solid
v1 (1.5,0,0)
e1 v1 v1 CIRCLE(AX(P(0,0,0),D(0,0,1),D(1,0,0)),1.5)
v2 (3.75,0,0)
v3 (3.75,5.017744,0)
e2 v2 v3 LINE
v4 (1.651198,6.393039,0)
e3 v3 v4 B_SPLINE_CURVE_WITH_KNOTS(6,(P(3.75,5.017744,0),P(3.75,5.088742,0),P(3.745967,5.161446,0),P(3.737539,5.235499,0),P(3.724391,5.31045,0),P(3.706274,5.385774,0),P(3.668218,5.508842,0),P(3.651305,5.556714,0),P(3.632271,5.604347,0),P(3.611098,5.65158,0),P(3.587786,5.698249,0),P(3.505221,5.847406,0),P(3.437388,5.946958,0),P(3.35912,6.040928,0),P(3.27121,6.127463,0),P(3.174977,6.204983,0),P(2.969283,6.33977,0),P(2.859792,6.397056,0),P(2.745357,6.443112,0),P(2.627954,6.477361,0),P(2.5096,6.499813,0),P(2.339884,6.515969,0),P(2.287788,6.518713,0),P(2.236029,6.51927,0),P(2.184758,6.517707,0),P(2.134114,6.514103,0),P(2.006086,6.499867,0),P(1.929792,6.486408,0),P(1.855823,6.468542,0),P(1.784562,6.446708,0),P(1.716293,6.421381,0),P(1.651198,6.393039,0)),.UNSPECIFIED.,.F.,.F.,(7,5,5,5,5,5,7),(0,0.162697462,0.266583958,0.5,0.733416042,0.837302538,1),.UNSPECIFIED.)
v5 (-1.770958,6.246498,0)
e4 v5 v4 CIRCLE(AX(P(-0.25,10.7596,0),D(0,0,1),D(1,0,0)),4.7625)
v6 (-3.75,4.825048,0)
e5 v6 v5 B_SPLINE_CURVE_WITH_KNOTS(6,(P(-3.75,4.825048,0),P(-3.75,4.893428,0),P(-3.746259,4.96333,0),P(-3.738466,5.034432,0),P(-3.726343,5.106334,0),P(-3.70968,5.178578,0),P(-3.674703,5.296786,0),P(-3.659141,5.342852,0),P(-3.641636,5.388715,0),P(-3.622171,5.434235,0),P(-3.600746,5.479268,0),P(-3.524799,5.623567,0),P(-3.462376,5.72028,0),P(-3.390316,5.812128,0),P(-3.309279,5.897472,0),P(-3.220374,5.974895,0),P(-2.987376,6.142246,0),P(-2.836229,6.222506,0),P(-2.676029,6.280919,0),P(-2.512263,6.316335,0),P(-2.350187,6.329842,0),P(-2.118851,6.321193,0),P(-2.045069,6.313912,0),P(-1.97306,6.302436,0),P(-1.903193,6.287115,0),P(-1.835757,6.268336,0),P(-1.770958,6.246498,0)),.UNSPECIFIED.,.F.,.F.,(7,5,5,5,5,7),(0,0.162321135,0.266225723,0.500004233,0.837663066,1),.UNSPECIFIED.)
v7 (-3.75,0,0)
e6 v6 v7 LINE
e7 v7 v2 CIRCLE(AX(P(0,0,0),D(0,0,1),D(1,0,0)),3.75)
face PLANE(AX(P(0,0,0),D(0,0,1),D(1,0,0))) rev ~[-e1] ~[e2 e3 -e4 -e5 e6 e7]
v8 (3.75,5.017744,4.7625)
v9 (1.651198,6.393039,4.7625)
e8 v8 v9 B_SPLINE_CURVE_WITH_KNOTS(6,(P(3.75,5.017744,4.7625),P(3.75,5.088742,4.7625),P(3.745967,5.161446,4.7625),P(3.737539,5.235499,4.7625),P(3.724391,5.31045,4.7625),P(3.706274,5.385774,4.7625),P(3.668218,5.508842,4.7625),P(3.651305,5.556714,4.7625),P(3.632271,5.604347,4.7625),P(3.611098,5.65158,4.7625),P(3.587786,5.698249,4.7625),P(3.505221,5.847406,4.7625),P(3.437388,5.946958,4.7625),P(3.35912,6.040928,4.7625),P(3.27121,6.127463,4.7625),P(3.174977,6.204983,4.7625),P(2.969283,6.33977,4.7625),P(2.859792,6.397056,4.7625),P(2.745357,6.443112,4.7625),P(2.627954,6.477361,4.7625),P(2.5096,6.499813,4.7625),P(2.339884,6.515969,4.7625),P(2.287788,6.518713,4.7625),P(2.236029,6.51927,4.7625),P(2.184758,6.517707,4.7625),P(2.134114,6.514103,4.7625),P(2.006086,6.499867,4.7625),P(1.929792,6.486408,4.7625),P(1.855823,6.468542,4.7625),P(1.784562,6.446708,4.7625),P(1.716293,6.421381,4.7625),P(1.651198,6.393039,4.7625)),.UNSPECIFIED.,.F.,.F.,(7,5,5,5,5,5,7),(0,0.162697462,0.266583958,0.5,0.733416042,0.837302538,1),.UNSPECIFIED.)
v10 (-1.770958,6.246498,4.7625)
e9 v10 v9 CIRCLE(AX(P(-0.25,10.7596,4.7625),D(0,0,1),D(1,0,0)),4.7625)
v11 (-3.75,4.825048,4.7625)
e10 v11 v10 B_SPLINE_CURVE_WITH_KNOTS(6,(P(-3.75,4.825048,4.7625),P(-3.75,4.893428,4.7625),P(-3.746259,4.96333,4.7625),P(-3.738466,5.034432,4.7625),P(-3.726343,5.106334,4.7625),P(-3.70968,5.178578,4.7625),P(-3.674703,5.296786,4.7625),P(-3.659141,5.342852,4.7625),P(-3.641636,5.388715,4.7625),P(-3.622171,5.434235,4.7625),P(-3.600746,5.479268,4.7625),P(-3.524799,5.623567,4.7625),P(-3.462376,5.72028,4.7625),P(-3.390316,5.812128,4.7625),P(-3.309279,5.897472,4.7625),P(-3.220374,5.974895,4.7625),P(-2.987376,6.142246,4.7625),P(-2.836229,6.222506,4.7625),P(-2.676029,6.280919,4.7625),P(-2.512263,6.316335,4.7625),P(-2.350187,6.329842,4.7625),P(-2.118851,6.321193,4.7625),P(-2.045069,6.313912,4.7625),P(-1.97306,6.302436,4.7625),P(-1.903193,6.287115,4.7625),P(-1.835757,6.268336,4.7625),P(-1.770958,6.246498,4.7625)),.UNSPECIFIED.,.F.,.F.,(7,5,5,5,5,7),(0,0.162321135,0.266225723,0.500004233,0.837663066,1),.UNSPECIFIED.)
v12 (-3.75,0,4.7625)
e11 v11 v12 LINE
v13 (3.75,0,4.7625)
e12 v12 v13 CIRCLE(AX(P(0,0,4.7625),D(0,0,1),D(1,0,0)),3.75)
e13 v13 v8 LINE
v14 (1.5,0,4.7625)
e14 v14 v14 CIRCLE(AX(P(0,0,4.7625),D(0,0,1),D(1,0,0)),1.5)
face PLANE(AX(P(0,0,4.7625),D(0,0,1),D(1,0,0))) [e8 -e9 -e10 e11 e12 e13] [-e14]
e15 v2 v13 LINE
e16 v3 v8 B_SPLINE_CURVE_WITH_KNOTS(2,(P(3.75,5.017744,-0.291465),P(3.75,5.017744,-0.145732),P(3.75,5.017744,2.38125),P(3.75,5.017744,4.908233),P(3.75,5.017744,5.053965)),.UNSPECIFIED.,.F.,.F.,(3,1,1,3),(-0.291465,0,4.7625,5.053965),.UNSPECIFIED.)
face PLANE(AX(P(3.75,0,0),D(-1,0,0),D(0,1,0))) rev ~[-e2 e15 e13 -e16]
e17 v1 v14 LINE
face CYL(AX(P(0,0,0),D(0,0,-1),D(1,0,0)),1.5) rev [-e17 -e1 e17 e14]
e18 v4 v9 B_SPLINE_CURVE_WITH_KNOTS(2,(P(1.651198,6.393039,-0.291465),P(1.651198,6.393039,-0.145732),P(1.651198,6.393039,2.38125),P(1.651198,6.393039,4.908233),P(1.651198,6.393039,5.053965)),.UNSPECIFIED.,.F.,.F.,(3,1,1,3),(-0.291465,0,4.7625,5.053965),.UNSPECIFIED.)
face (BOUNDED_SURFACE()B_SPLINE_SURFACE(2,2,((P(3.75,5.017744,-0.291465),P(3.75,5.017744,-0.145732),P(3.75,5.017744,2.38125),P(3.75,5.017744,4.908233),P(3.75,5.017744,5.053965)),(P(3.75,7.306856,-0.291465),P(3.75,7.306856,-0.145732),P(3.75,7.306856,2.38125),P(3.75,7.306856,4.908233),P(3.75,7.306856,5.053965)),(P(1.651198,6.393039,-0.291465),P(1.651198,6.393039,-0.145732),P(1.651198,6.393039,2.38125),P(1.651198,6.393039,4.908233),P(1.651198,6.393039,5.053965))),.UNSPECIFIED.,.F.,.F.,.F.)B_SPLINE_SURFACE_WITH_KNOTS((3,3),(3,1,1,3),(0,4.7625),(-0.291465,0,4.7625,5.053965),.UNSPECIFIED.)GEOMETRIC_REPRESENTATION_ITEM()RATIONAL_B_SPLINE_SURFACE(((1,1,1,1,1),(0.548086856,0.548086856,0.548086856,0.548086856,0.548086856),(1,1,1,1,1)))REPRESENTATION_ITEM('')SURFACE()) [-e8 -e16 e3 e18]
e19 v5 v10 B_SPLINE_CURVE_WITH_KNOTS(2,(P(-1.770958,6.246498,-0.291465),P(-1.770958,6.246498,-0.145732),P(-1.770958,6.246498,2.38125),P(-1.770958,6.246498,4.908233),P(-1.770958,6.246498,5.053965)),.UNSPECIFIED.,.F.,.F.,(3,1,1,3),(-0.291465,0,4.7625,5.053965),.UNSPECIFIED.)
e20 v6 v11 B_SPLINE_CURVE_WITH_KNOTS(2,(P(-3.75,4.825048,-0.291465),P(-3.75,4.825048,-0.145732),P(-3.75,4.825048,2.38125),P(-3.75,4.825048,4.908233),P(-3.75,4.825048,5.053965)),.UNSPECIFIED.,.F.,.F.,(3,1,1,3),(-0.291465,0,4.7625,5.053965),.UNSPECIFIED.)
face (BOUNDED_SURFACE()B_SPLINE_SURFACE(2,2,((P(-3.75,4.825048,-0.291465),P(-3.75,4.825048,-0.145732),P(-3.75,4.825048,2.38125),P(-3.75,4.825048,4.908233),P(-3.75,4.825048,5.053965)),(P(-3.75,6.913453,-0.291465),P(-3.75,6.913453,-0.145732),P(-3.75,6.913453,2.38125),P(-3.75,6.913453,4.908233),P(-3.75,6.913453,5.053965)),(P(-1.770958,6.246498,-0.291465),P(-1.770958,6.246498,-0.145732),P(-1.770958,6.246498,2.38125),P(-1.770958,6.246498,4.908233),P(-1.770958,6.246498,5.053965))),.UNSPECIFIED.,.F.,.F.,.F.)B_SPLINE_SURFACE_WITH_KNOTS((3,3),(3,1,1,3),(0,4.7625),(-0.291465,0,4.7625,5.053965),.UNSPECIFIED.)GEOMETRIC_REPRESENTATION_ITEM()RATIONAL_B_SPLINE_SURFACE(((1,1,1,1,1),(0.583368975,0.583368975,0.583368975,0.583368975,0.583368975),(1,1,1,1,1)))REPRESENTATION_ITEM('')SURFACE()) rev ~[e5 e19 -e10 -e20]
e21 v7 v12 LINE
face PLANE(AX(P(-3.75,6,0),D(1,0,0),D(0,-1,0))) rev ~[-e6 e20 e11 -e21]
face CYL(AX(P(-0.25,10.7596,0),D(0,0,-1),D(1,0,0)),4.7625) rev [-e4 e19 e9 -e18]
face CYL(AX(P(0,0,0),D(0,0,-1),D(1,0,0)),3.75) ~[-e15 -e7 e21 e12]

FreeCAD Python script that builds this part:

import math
import FreeCAD as App
import Part
import Sketcher


def edges_at(feature, points):
    """Names of the edges that pass closest to the given points."""
    edges = feature.Shape.Edges
    near = lambda p: min(range(len(edges)), key=lambda i: edges[i].distToShape(Part.Vertex(*p))[0])
    return sorted({f"Edge{near(p) + 1}" for p in points})

doc = App.newDocument("Part")
body = doc.addObject("PartDesign::Body", "Body")

sketch1 = doc.addObject("Sketcher::SketchObject", "Sketch")
body.addObject(sketch1)
sketch1.AttachmentSupport = (doc.XY_Plane, [""])
sketch1.MapMode = "FlatFace"
sketch1.addGeometry(Part.ArcOfCircle(Part.Circle(App.Vector(0, 0, 0), App.Vector(0, 0, 1), 3.75), math.radians(180), math.radians(360)), False)
sketch1.addGeometry(Part.LineSegment(App.Vector(3.75, 0, 0), App.Vector(3.75, 6, 0)), False)
sketch1.addGeometry(Part.ArcOfCircle(Part.Circle(App.Vector(0, 6, 0), App.Vector(0, 0, 1), 3.75), math.radians(0), math.radians(26.233678)), False)
sketch1.addGeometry(Part.ArcOfCircle(Part.Circle(App.Vector(-0.25, 10.7596, 0), App.Vector(0, 0, 1), 4.7625), math.radians(-133.344342), math.radians(-40.642214)), False)
sketch1.addGeometry(Part.ArcOfCircle(Part.Circle(App.Vector(0, 6, 0), App.Vector(0, 0, 1), 3.75), math.radians(159.779766), math.radians(180)), False)
sketch1.addGeometry(Part.LineSegment(App.Vector(-3.75, 6, 0), App.Vector(-3.75, 0, 0)), False)
sketch1.addGeometry(Part.Circle(App.Vector(0, 0, 0), App.Vector(0, 0, 1), 1.5), False)
sketch1.addConstraint(Sketcher.Constraint("Tangent", 0, 2, 1, 1))
sketch1.addConstraint(Sketcher.Constraint("Tangent", 1, 2, 2, 1))
sketch1.addConstraint(Sketcher.Constraint("Coincident", 2, 2, 3, 2))
sketch1.addConstraint(Sketcher.Constraint("Coincident", 3, 1, 4, 1))
sketch1.addConstraint(Sketcher.Constraint("Tangent", 4, 2, 5, 1))
sketch1.addConstraint(Sketcher.Constraint("Tangent", 5, 2, 0, 1))
sketch1.addConstraint(Sketcher.Constraint("Vertical", 1))
sketch1.addConstraint(Sketcher.Constraint("Vertical", 5))
sketch1.addConstraint(Sketcher.Constraint("Coincident", 0, 3, -1, 1))
sketch1.addConstraint(Sketcher.Constraint("Coincident", 6, 3, -1, 1))
sketch1.addConstraint(Sketcher.Constraint("Coincident", 4, 3, 2, 3))
sketch1.addConstraint(Sketcher.Constraint("Equal", 0, 2))
sketch1.addConstraint(Sketcher.Constraint("Diameter", 6, 3.0))
sketch1.addConstraint(Sketcher.Constraint("Radius", 0, 3.75))
sketch1.addConstraint(Sketcher.Constraint("Radius", 3, 4.7625))
sketch1.addConstraint(Sketcher.Constraint("DistanceY", 1, 1, 1, 2, 6.0))
sketch1.addConstraint(Sketcher.Constraint("DistanceX", 3, 3, -1, 1, 0.25))
sketch1.addConstraint(Sketcher.Constraint("DistanceX", 3, 1, -1, 1, 3.519))
pad1 = doc.addObject("PartDesign::Pad", "Pad")
body.addObject(pad1)
pad1.Profile = sketch1
pad1.Length = 4.7625
doc.recompute()

fillet = doc.addObject("PartDesign::Fillet", "Fillet")
body.addObject(fillet)
fillet.Base = (pad1, edges_at(pad1, [(3.364, 7.658, 2.381), (-3.519, 7.296, 2.381)]))
fillet.Radius = 1.5

doc.recompute()
